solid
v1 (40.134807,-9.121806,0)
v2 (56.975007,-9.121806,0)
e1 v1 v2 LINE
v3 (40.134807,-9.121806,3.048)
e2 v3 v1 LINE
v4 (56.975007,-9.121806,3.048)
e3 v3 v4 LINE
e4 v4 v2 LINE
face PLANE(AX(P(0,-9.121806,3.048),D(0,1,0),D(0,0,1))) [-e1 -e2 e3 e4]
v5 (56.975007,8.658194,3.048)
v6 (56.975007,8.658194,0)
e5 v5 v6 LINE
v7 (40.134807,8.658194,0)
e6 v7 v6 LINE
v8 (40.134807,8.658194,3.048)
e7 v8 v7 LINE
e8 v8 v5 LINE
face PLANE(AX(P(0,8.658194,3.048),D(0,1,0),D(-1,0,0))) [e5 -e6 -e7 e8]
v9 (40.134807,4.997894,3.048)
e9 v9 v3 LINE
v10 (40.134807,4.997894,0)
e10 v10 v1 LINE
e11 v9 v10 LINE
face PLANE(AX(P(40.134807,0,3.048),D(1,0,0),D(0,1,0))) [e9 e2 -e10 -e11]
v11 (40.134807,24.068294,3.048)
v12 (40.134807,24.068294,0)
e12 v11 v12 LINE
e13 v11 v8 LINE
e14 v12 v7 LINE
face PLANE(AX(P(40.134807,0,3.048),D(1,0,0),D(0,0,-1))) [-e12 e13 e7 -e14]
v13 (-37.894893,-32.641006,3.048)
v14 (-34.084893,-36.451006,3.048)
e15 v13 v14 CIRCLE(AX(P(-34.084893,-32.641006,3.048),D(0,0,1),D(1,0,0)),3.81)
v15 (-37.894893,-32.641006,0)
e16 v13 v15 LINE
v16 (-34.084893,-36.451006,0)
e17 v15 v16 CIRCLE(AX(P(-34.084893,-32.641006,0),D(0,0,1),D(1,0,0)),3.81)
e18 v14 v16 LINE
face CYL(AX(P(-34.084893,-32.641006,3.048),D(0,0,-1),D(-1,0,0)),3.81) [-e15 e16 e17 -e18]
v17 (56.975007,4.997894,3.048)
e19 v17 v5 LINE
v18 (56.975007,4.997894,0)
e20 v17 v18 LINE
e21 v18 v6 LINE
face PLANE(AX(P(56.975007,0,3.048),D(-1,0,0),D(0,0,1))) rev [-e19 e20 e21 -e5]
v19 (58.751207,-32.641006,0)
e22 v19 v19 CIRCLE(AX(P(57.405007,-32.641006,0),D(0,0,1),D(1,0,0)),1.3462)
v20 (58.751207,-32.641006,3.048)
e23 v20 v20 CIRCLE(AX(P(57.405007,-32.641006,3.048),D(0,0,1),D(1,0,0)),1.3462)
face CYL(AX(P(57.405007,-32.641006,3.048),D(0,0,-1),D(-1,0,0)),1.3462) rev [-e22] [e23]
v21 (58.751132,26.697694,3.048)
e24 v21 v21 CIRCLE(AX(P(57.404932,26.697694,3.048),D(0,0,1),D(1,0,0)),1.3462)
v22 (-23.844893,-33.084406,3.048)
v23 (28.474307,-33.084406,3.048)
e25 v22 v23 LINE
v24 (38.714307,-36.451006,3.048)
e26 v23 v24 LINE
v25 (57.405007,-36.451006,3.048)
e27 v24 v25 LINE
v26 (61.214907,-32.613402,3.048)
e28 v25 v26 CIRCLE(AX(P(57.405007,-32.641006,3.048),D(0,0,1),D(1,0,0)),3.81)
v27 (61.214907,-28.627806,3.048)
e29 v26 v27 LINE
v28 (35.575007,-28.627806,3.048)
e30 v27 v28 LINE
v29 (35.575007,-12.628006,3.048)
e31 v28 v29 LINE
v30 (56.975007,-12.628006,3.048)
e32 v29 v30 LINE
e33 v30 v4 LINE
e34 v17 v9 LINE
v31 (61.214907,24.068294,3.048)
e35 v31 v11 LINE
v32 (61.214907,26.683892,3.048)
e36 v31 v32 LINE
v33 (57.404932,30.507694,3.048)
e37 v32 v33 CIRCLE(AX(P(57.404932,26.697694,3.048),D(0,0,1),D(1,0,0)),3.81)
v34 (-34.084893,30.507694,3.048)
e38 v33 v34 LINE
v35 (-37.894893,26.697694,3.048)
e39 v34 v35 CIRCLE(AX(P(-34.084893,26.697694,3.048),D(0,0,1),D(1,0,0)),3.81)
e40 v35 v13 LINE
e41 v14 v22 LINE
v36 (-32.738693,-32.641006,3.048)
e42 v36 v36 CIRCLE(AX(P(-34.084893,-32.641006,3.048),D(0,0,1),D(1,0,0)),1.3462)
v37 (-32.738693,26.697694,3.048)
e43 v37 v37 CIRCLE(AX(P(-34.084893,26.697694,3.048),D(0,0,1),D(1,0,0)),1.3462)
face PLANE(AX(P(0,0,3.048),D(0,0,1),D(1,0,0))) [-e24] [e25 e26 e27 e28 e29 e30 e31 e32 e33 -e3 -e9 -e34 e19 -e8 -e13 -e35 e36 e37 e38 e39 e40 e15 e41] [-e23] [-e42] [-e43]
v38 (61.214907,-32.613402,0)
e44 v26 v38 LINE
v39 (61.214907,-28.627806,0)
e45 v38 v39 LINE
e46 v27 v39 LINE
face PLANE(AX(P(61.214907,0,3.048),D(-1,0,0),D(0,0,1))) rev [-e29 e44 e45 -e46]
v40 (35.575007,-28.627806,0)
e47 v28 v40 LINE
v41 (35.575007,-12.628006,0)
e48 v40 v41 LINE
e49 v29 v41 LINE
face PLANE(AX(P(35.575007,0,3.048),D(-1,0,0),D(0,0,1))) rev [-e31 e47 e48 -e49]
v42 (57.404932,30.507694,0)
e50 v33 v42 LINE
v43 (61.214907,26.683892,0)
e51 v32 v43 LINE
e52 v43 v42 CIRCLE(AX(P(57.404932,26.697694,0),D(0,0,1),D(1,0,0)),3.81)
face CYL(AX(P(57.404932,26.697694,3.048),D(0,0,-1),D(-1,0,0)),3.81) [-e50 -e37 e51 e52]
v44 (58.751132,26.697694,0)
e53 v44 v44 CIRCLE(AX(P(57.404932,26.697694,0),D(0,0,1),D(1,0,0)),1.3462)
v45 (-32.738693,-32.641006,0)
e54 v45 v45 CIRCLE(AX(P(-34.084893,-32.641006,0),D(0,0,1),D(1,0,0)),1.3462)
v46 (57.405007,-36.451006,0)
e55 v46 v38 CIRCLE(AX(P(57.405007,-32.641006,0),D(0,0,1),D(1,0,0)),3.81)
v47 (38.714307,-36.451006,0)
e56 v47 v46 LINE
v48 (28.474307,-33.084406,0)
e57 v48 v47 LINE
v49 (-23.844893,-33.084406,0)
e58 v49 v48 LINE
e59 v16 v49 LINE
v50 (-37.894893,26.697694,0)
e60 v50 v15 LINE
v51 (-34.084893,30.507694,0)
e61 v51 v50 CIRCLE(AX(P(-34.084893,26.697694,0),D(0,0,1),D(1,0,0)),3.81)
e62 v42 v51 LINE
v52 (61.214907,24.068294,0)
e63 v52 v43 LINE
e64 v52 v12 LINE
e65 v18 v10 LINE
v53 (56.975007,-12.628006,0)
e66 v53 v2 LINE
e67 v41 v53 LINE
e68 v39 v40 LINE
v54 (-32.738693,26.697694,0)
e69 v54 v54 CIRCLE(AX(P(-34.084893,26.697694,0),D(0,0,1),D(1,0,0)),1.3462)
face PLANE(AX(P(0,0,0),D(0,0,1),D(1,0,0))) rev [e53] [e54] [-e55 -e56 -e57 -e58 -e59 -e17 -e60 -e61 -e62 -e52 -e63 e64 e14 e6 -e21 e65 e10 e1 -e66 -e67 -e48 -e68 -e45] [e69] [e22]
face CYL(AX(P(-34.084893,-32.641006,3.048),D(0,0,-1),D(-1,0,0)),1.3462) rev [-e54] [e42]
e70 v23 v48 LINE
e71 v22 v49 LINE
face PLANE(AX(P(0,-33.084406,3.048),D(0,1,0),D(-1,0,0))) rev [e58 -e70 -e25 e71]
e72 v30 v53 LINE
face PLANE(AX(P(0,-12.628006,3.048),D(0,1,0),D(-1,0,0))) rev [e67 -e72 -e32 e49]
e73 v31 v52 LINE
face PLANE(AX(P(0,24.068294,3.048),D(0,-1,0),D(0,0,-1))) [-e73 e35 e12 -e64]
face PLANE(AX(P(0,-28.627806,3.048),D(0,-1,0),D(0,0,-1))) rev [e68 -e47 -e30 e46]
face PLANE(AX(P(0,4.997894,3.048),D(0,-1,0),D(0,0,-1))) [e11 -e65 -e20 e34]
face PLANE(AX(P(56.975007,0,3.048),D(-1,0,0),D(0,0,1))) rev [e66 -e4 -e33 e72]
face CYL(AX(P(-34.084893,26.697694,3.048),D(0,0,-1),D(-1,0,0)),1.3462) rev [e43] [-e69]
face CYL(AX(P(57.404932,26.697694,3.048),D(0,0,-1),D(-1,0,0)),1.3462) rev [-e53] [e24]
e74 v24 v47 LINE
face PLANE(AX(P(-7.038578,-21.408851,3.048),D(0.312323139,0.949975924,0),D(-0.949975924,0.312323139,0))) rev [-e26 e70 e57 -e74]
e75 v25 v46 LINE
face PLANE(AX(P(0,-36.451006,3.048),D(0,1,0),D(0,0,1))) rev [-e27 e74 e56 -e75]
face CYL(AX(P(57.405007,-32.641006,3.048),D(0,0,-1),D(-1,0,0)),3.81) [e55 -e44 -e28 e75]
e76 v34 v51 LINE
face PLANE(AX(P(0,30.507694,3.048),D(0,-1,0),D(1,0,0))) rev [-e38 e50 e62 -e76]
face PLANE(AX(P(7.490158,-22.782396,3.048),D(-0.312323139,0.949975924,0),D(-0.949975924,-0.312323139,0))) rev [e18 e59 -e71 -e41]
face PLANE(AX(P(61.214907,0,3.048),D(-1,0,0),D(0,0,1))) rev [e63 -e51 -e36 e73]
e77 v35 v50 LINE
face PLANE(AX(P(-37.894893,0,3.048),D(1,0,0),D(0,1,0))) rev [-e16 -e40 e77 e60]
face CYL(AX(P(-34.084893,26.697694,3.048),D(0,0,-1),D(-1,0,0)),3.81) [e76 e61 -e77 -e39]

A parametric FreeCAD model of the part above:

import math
import FreeCAD as App
import Part
import Sketcher
Q = App.Units.Quantity

doc = App.newDocument("Part")
body = doc.addObject("PartDesign::Body", "Body")

sketch1 = body.newObject("Sketcher::SketchObject", "Sketch")
sketch1.AttachmentSupport = (doc.getObject("XY_Plane"), [""])
sketch1.MapMode = "FlatFace"
sketch1.addGeometry([
    Part.LineSegment(App.Vector(40.134807, 24.068294, 0), App.Vector(61.214907, 24.068294, 0)),
    Part.LineSegment(App.Vector(61.214907, 24.068294, 0), App.Vector(61.214907, 26.683892, 0)),
    Part.ArcOfCircle(Part.Circle(App.Vector(57.404932, 26.697694, 0), App.Vector(0, 0, 1), 3.81), math.radians(-0.207561), math.radians(90)),
    Part.LineSegment(App.Vector(57.404932, 30.507694, 0), App.Vector(-34.084893, 30.507694, 0)),
    Part.ArcOfCircle(Part.Circle(App.Vector(-34.084893, 26.697694, 0), App.Vector(0, 0, 1), 3.81), math.radians(90), math.radians(180)),
    Part.LineSegment(App.Vector(-37.894893, 26.697694, 0), App.Vector(-37.894893, -32.641006, 0)),
    Part.ArcOfCircle(Part.Circle(App.Vector(-34.084893, -32.641006, 0), App.Vector(0, 0, 1), 3.81), math.radians(-180), math.radians(-90)),
    Part.LineSegment(App.Vector(-34.084893, -36.451006, 0), App.Vector(-23.844893, -33.084406, 0)),
    Part.LineSegment(App.Vector(-23.844893, -33.084406, 0), App.Vector(28.474307, -33.084406, 0)),
    Part.LineSegment(App.Vector(28.474307, -33.084406, 0), App.Vector(38.714307, -36.451006, 0)),
    Part.LineSegment(App.Vector(38.714307, -36.451006, 0), App.Vector(57.405007, -36.451006, 0)),
    Part.ArcOfCircle(Part.Circle(App.Vector(57.405007, -32.641006, 0), App.Vector(0, 0, 1), 3.81), math.radians(-90), math.radians(0.415122)),
    Part.LineSegment(App.Vector(61.214907, -32.613402, 0), App.Vector(61.214907, -28.627806, 0)),
    Part.LineSegment(App.Vector(61.214907, -28.627806, 0), App.Vector(35.575007, -28.627806, 0)),
    Part.LineSegment(App.Vector(35.575007, -28.627806, 0), App.Vector(35.575007, -12.628006, 0)),
    Part.LineSegment(App.Vector(35.575007, -12.628006, 0), App.Vector(56.975007, -12.628006, 0)),
    Part.LineSegment(App.Vector(56.975007, -12.628006, 0), App.Vector(56.975007, -9.121806, 0)),
    Part.LineSegment(App.Vector(56.975007, -9.121806, 0), App.Vector(40.134807, -9.121806, 0)),
    Part.LineSegment(App.Vector(40.134807, -9.121806, 0), App.Vector(40.134807, 4.997894, 0)),
    Part.LineSegment(App.Vector(40.134807, 4.997894, 0), App.Vector(56.975007, 4.997894, 0)),
    Part.LineSegment(App.Vector(56.975007, 4.997894, 0), App.Vector(56.975007, 8.658194, 0)),
    Part.LineSegment(App.Vector(56.975007, 8.658194, 0), App.Vector(40.134807, 8.658194, 0)),
    Part.LineSegment(App.Vector(40.134807, 8.658194, 0), App.Vector(40.134807, 24.068294, 0)),
    Part.Circle(App.Vector(57.405007, -32.641006, 0), App.Vector(0, 0, 1), 1.3462),
    Part.LineSegment(App.Vector(13.845007, -30.966806, 0), App.Vector(13.845007, -8.360206, 0)),
    Part.LineSegment(App.Vector(13.845007, -8.360206, 0), App.Vector(19.248407, -8.360206, 0)),
    Part.LineSegment(App.Vector(19.248407, -8.360206, 0), App.Vector(19.248407, -30.966806, 0)),
    Part.LineSegment(App.Vector(19.248407, -30.966806, 0), App.Vector(13.845007, -30.966806, 0)),
    Part.Circle(App.Vector(-34.084893, -32.641006, 0), App.Vector(0, 0, 1), 1.3462),
    Part.Circle(App.Vector(57.404932, 26.697694, 0), App.Vector(0, 0, 1), 1.3462),
    Part.LineSegment(App.Vector(-29.004893, -13.566806, 0), App.Vector(-29.004893, 9.801194, 0)),
    Part.LineSegment(App.Vector(-29.004893, 9.801194, 0), App.Vector(-23.416893, 9.801194, 0)),
    Part.LineSegment(App.Vector(-23.416893, 9.801194, 0), App.Vector(-23.416893, -13.566806, 0)),
    Part.LineSegment(App.Vector(-23.416893, -13.566806, 0), App.Vector(-29.004893, -13.566806, 0)),
    Part.LineSegment(App.Vector(-29.004893, 18.086994, 0), App.Vector(-29.004893, 25.896994, 0)),
    Part.LineSegment(App.Vector(-29.004893, 25.896994, 0), App.Vector(31.688307, 25.896994, 0)),
    Part.LineSegment(App.Vector(31.688307, 25.896994, 0), App.Vector(31.688307, 18.086994, 0)),
    Part.LineSegment(App.Vector(31.688307, 18.086994, 0), App.Vector(-29.004893, 18.086994, 0)),
    Part.Circle(App.Vector(-34.084893, 26.697694, 0), App.Vector(0, 0, 1), 1.3462),
], False)
sketch1.addConstraint([
    Sketcher.Constraint("Coincident", 0, 2, 1, 1),
    Sketcher.Constraint("Coincident", 1, 2, 2, 1),
    Sketcher.Constraint("Tangent", 2, 2, 3, 1),
    Sketcher.Constraint("Tangent", 3, 2, 4, 1),
    Sketcher.Constraint("Tangent", 4, 2, 5, 1),
    Sketcher.Constraint("Tangent", 5, 2, 6, 1),
    Sketcher.Constraint("Coincident", 6, 2, 7, 1),
    Sketcher.Constraint("Coincident", 7, 2, 8, 1),
    Sketcher.Constraint("Coincident", 8, 2, 9, 1),
    Sketcher.Constraint("Coincident", 9, 2, 10, 1),
    Sketcher.Constraint("Tangent", 10, 2, 11, 1),
    Sketcher.Constraint("Coincident", 11, 2, 12, 1),
    Sketcher.Constraint("Coincident", 12, 2, 13, 1),
    Sketcher.Constraint("Coincident", 13, 2, 14, 1),
    Sketcher.Constraint("Coincident", 14, 2, 15, 1),
    Sketcher.Constraint("Coincident", 15, 2, 16, 1),
    Sketcher.Constraint("Coincident", 16, 2, 17, 1),
    Sketcher.Constraint("Coincident", 17, 2, 18, 1),
    Sketcher.Constraint("Coincident", 18, 2, 19, 1),
    Sketcher.Constraint("Coincident", 19, 2, 20, 1),
    Sketcher.Constraint("Coincident", 20, 2, 21, 1),
    Sketcher.Constraint("Coincident", 21, 2, 22, 1),
    Sketcher.Constraint("Coincident", 22, 2, 0, 1),
    Sketcher.Constraint("Coincident", 24, 2, 25, 1),
    Sketcher.Constraint("Coincident", 25, 2, 26, 1),
    Sketcher.Constraint("Coincident", 26, 2, 27, 1),
    Sketcher.Constraint("Coincident", 27, 2, 24, 1),
    Sketcher.Constraint("Coincident", 30, 2, 31, 1),
    Sketcher.Constraint("Coincident", 31, 2, 32, 1),
    Sketcher.Constraint("Coincident", 32, 2, 33, 1),
    Sketcher.Constraint("Coincident", 33, 2, 30, 1),
    Sketcher.Constraint("Coincident", 34, 2, 35, 1),
    Sketcher.Constraint("Coincident", 35, 2, 36, 1),
    Sketcher.Constraint("Coincident", 36, 2, 37, 1),
    Sketcher.Constraint("Coincident", 37, 2, 34, 1),
    Sketcher.Constraint("Horizontal", 0),
    Sketcher.Constraint("Vertical", 1),
    Sketcher.Constraint("Horizontal", 3),
    Sketcher.Constraint("Vertical", 5),
    Sketcher.Constraint("Horizontal", 8),
    Sketcher.Constraint("Horizontal", 10),
    Sketcher.Constraint("Vertical", 12),
    Sketcher.Constraint("Horizontal", 13),
    Sketcher.Constraint("Vertical", 14),
    Sketcher.Constraint("Horizontal", 15),
    Sketcher.Constraint("Vertical", 16),
    Sketcher.Constraint("Horizontal", 17),
    Sketcher.Constraint("Vertical", 18),
    Sketcher.Constraint("Horizontal", 19),
    Sketcher.Constraint("Vertical", 20),
    Sketcher.Constraint("Horizontal", 21),
    Sketcher.Constraint("Vertical", 22),
    Sketcher.Constraint("Vertical", 24),
    Sketcher.Constraint("Horizontal", 25),
    Sketcher.Constraint("Vertical", 26),
    Sketcher.Constraint("Horizontal", 27),
    Sketcher.Constraint("Vertical", 30),
    Sketcher.Constraint("Horizontal", 31),
    Sketcher.Constraint("Vertical", 32),
    Sketcher.Constraint("Horizontal", 33),
    Sketcher.Constraint("Vertical", 34),
    Sketcher.Constraint("Horizontal", 35),
    Sketcher.Constraint("Vertical", 36),
    Sketcher.Constraint("Horizontal", 37),
    Sketcher.Constraint("Coincident", 23, 3, 11, 3),
    Sketcher.Constraint("Coincident", 28, 3, 6, 3),
    Sketcher.Constraint("Coincident", 29, 3, 2, 3),
    Sketcher.Constraint("Coincident", 38, 3, 4, 3),
    Sketcher.Constraint("Equal", 2, 4),
    Sketcher.Constraint("Equal", 4, 6),
    Sketcher.Constraint("Equal", 6, 11),
    Sketcher.Constraint("Equal", 23, 28),
    Sketcher.Constraint("Equal", 28, 29),
    Sketcher.Constraint("Equal", 29, 38),
    Sketcher.Constraint("Horizontal", 6, 3, 11, 3),
    Sketcher.Constraint("Vertical", 3, 2, 6, 2),
    Sketcher.Constraint("Vertical", 1, 2, 11, 2),
    Sketcher.Constraint("Vertical", 16, 2, 19, 2),
    Sketcher.Constraint("Vertical", 18, 2, 21, 2),
    Sketcher.Constraint("Vertical", 33, 2, 34, 2),
    Sketcher.Constraint("Equal", 7, 9),
    Sketcher.Constraint("Radius", 2, Q("0.15 in")),
    Sketcher.Constraint("Diameter", 23, Q("0.106 in")),
    Sketcher.Constraint("DistanceX", 31, 1, 31, 2, Q("0.22 in")),
    Sketcher.Constraint("DistanceY", 30, 1, 30, 2, Q("0.92 in")),
    Sketcher.Constraint("DistanceY", 16, 2, 20, 2, Q("0.7 in")),
    Sketcher.Constraint("DistanceX", 38, 3, 30, 2, Q("0.2 in")),
    Sketcher.Constraint("DistanceX", 17, 2, 17, 1, Q("0.663 in")),
    Sketcher.Constraint("DistanceX", 8, 2, 11, 2, Q("1.289 in")),
    Sketcher.Constraint("DistanceY", 11, 3, 12, 2, Q("0.158 in")),
    Sketcher.Constraint("DistanceX", 0, 1, 0, 2, Q("21.0801 mm")),
    Sketcher.Constraint("DistanceX", 8, 1, 8, 2, Q("52.3192 mm")),
    Sketcher.Constraint("DistanceX", 10, 1, 10, 2, Q("18.6907 mm")),
    Sketcher.Constraint("DistanceX", 13, 2, 13, 1, Q("25.6399 mm")),
    Sketcher.Constraint("DistanceX", 25, 1, 25, 2, Q("5.4034 mm")),
    Sketcher.Constraint("DistanceX", 35, 1, 35, 2, Q("60.6932 mm")),
    Sketcher.Constraint("DistanceY", 5, 2, 5, 1, Q("59.3387 mm")),
    Sketcher.Constraint("DistanceY", 14, 1, 14, 2, Q("15.9998 mm")),
    Sketcher.Constraint("DistanceY", 16, 1, 16, 2, Q("3.5062 mm")),
    Sketcher.Constraint("DistanceY", 18, 1, 18, 2, Q("14.1197 mm")),
    Sketcher.Constraint("DistanceY", 22, 1, 22, 2, Q("15.4101 mm")),
    Sketcher.Constraint("DistanceY", 24, 1, 24, 2, Q("22.6066 mm")),
    Sketcher.Constraint("DistanceY", 34, 1, 34, 2, Q("7.81 mm")),
    Sketcher.Constraint("DistanceY", 11, 2, -1, 1, Q("32.613402 mm")),
    Sketcher.Constraint("DistanceY", 7, 2, 6, 3, Q("0.4434 mm")),
    Sketcher.Constraint("DistanceX", 24, 2, 14, 2, Q("21.73 mm")),
    Sketcher.Constraint("DistanceY", 14, 2, 24, 2, Q("4.2678 mm")),
    Sketcher.Constraint("DistanceY", 30, 2, 38, 3, Q("16.8965 mm")),
    Sketcher.Constraint("DistanceY", 34, 2, 38, 3, Q("0.8007 mm")),
    Sketcher.Constraint("DistanceX", 3, 2, 3, 1, Q("91.489825 mm")),
    Sketcher.Constraint("DistanceY", 1, 1, 1, 2, Q("2.615598 mm")),
    Sketcher.Constraint("DistanceX", -1, 1, 2, 3, Q("57.404932 mm")),
])
pad1 = body.newObject("PartDesign::Pad", "Pad")
pad1.Profile = sketch1
pad1.Length = Q("0.12 in")

sketch2 = body.newObject("Sketcher::SketchObject", "Sketch001")
sketch2.AttachmentSupport = (doc.getObject("XY_Plane"), [""])
sketch2.MapMode = "FlatFace"
sketch2.AttachmentOffset = App.Placement(App.Vector(0, 0, 0.12 * 25.4), App.Rotation())
sketch2.addGeometry([
    Part.Circle(App.Vector(-0.3, -0.5, 0), App.Vector(0, 0, 1), 10.9),
    Part.Circle(App.Vector(-10.3, -10.5, 0), App.Vector(0, 0, 1), 1.5),
    Part.Circle(App.Vector(-10.3, 9.5, 0), App.Vector(0, 0, 1), 1.5),
    Part.Circle(App.Vector(9.7, -10.5, 0), App.Vector(0, 0, 1), 1.5),
    Part.Circle(App.Vector(9.7, 9.5, 0), App.Vector(0, 0, 1), 1.5),
], False)
sketch2.addConstraint([
    Sketcher.Constraint("Equal", 1, 2),
    Sketcher.Constraint("Equal", 2, 3),
    Sketcher.Constraint("Equal", 3, 4),
    Sketcher.Constraint("Horizontal", 1, 3, 3, 3),
    Sketcher.Constraint("Horizontal", 2, 3, 4, 3),
    Sketcher.Constraint("Vertical", 1, 3, 2, 3),
    Sketcher.Constraint("Vertical", 3, 3, 4, 3),
    Sketcher.Constraint("Diameter", 0, Q("0.86 in")),
    Sketcher.Constraint("Diameter", 1, Q("0.118 in")),
    Sketcher.Constraint("DistanceX", 1, 3, 0, 3, Q("0.393 in")),
    Sketcher.Constraint("DistanceY", 1, 3, 0, 3, Q("0.393 in")),
    Sketcher.Constraint("DistanceY", 0, 3, 2, 3, Q("0.393 in")),
    Sketcher.Constraint("DistanceX", 0, 3, 3, 3, Q("0.393 in")),
    Sketcher.Constraint("DistanceX", 0, 3, -1, 1, Q("0.302893 mm")),
    Sketcher.Constraint("DistanceY", 0, 3, -1, 1, Q("0.480306 mm")),
])
pocket1 = body.newObject("PartDesign::Pocket", "Pocket")
pocket1.Profile = sketch2
pocket1.Type = "ThroughAll"

sketch3 = body.newObject("Sketcher::SketchObject", "Sketch002")
sketch3.AttachmentSupport = (doc.getObject("XY_Plane"), [""])
sketch3.MapMode = "FlatFace"
sketch3.AttachmentOffset = App.Placement(App.Vector(0, 0, 0.12 * 25.4), App.Rotation())
sketch3.addGeometry([
    Part.LineSegment(App.Vector(-29, 26, 0), App.Vector(-29, -31, 0)),
    Part.LineSegment(App.Vector(-29, -31, 0), App.Vector(32, -31, 0)),
    Part.LineSegment(App.Vector(32, -31, 0), App.Vector(32, 26, 0)),
    Part.LineSegment(App.Vector(32, 26, 0), App.Vector(-29, 26, 0)),
], False)
sketch3.addConstraint([
    Sketcher.Constraint("Coincident", 0, 2, 1, 1),
    Sketcher.Constraint("Coincident", 1, 2, 2, 1),
    Sketcher.Constraint("Coincident", 2, 2, 3, 1),
    Sketcher.Constraint("Coincident", 3, 2, 0, 1),
    Sketcher.Constraint("Vertical", 0),
    Sketcher.Constraint("Horizontal", 1),
    Sketcher.Constraint("Vertical", 2),
    Sketcher.Constraint("Horizontal", 3),
    Sketcher.Constraint("DistanceX", 1, 1, 1, 2, Q("60.6932 mm")),
    Sketcher.Constraint("DistanceY", 0, 2, 0, 1, Q("56.8638 mm")),
    Sketcher.Constraint("DistanceX", 0, 2, -1, 1, Q("29.004893 mm")),
    Sketcher.Constraint("DistanceY", 0, 2, -1, 1, Q("30.966806 mm")),
])
pad2 = body.newObject("PartDesign::Pad", "Pad001")
pad2.Profile = sketch3
pad2.Length = Q("0.12 in")
pad2.Reversed = True

doc.recompute()
